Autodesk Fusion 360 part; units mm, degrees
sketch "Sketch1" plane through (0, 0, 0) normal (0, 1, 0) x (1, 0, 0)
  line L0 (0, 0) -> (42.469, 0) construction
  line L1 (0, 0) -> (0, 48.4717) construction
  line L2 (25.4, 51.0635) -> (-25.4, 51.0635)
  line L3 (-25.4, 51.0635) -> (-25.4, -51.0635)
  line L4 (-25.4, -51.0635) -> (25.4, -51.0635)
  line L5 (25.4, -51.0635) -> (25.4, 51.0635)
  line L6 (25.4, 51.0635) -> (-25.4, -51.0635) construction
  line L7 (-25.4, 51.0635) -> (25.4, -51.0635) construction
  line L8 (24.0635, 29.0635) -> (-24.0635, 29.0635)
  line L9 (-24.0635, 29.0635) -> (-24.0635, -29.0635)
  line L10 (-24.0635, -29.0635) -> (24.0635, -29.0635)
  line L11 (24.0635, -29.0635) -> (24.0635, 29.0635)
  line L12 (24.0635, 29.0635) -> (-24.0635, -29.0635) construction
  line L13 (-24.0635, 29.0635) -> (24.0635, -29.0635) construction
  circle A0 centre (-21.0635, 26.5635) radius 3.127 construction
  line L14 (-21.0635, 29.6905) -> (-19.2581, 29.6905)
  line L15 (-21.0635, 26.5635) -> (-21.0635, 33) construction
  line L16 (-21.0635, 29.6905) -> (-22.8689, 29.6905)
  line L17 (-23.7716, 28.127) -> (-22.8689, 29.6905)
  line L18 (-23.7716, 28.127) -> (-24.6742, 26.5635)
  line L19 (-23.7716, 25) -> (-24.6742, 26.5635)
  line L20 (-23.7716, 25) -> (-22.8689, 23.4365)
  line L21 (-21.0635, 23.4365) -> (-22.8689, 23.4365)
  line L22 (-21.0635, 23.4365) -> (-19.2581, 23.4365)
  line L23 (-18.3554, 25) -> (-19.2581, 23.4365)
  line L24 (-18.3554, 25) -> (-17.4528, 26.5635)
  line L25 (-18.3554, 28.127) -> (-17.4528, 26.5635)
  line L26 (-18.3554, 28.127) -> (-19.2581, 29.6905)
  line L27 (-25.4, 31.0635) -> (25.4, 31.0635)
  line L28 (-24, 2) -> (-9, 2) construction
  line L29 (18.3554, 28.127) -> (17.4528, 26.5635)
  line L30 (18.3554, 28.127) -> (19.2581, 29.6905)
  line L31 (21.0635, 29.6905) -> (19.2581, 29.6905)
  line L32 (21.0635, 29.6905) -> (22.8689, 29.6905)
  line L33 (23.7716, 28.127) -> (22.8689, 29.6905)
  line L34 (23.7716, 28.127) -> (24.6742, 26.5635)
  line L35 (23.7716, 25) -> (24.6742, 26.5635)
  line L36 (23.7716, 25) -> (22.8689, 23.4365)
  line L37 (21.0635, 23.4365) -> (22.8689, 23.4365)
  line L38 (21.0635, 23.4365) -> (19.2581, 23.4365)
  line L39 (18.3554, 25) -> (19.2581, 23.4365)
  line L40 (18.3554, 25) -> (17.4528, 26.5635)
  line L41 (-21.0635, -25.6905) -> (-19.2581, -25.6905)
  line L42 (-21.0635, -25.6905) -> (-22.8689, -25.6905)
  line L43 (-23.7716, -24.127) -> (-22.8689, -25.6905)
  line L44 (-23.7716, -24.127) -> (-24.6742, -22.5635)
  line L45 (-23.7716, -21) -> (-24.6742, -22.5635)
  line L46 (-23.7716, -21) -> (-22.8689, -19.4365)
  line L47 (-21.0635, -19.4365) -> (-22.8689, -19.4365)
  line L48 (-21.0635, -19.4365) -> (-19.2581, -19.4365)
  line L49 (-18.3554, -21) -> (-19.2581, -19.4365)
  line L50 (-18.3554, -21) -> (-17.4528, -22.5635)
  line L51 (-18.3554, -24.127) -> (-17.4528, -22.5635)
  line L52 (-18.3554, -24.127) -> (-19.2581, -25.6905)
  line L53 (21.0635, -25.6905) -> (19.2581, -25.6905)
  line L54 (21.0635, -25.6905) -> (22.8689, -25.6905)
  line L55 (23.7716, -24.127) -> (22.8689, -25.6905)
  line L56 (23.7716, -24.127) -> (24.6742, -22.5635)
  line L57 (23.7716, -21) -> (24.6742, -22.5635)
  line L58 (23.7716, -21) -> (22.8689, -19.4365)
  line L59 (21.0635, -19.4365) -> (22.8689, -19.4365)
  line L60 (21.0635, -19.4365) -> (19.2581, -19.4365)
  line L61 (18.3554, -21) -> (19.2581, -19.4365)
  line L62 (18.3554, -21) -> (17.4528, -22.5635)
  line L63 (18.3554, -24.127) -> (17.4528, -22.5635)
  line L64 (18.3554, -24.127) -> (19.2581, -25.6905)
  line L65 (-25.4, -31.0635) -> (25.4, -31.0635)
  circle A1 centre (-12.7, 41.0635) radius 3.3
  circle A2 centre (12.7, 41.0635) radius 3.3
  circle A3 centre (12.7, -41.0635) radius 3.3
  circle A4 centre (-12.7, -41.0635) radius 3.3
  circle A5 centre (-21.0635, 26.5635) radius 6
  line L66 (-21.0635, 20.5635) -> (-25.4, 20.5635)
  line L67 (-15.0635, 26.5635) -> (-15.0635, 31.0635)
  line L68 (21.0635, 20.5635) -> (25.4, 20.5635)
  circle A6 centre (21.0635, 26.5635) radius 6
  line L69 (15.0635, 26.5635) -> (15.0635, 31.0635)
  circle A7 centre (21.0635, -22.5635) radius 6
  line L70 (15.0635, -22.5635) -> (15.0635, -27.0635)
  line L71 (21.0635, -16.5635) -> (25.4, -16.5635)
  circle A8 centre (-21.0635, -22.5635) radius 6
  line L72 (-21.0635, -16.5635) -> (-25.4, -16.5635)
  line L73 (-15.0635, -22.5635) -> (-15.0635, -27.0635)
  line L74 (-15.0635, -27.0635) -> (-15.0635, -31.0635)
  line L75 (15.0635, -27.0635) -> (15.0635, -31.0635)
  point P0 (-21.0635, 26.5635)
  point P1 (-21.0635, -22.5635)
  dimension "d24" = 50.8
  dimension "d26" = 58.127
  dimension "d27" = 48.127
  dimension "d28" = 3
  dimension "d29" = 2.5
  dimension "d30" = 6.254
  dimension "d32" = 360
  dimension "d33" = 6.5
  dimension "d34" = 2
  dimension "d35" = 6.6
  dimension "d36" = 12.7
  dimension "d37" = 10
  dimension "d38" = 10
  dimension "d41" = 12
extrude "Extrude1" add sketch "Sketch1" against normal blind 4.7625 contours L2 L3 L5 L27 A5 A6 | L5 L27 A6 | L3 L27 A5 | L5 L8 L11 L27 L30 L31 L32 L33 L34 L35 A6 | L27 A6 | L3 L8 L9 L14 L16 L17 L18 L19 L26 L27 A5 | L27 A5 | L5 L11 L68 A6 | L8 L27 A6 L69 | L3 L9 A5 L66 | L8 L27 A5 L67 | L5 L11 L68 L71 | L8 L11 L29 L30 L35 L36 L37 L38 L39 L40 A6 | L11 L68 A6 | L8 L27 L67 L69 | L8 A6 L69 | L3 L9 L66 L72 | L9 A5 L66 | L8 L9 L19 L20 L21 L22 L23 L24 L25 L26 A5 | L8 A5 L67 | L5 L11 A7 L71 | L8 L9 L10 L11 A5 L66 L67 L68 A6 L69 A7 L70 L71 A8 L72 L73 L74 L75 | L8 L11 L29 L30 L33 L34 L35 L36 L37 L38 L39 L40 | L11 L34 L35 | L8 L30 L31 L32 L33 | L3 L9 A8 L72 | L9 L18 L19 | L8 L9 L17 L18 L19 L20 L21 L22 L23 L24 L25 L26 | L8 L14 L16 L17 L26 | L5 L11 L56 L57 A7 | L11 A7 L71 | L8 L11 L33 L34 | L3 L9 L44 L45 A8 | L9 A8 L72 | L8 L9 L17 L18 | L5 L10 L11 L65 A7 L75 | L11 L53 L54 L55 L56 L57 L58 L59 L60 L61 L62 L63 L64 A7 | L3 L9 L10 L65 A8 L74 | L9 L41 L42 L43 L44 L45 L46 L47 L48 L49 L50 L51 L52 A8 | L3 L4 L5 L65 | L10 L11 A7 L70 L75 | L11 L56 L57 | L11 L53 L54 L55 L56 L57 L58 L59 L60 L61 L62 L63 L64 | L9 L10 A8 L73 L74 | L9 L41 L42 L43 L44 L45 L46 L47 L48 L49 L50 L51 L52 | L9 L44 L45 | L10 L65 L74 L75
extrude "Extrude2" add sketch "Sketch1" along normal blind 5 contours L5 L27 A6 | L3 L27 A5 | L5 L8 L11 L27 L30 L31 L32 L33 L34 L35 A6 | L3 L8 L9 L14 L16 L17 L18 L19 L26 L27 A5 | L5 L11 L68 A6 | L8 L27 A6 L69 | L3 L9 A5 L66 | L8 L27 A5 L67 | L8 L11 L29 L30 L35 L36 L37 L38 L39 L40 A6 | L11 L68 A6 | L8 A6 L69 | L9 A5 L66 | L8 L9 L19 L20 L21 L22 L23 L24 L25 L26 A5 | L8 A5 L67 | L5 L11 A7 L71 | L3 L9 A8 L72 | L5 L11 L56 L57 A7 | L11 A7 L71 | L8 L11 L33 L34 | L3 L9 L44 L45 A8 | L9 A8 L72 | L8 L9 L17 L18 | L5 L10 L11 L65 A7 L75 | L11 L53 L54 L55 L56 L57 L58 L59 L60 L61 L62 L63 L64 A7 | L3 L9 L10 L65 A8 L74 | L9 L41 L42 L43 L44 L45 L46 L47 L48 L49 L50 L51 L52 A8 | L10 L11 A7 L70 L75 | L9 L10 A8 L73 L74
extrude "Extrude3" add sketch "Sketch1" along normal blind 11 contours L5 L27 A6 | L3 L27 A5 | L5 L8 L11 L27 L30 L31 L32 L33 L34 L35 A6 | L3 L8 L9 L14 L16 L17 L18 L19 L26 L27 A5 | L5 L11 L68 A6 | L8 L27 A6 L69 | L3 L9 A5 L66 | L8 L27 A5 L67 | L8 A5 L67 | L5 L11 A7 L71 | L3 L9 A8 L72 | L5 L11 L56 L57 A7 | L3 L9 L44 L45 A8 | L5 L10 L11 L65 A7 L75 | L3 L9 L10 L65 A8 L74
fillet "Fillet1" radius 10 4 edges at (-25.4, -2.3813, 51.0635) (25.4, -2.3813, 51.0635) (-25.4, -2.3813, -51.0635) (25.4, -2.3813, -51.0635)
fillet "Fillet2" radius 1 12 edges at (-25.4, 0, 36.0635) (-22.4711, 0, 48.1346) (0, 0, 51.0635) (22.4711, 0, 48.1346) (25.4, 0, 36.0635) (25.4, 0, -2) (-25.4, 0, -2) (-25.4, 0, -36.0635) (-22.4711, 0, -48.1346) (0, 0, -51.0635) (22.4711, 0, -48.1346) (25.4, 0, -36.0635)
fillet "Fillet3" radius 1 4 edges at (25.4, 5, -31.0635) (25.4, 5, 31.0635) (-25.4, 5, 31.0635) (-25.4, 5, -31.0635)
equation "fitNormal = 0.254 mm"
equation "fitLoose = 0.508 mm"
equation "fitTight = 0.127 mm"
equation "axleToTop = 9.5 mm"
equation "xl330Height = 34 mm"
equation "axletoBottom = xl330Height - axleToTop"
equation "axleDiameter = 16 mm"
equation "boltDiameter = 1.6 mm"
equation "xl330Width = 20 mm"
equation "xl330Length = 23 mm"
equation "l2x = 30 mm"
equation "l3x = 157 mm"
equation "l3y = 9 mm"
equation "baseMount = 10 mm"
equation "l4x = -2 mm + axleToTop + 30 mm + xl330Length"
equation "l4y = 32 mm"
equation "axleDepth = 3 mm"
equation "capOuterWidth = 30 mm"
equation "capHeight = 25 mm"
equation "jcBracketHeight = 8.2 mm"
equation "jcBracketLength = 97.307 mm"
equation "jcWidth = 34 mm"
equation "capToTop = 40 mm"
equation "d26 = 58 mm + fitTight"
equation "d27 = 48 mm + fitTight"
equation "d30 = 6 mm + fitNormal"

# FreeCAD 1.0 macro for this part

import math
import FreeCAD as App
import Part
import Sketcher
from FreeCAD import Vector
Q = App.Units.Quantity


def edges_at(feature, points):
    """Names of the edges that pass closest to the given points."""
    edges = feature.Shape.Edges
    near = lambda p: min(range(len(edges)), key=lambda i: edges[i].distToShape(Part.Vertex(*p))[0])
    return sorted({f"Edge{near(p) + 1}" for p in points})

doc = App.newDocument("Part")
body = doc.addObject("PartDesign::Body", "Body")

sketch1 = body.newObject("Sketcher::SketchObject", "Sketch")
sketch1.AttachmentSupport = (doc.getObject("XZ_Plane"), [""])
sketch1.MapMode = "FlatFace"
sketch1.addGeometry(Part.LineSegment(Vector(25.4, -51.1, 0), Vector(-25.4, -51.1, 0)), False)
sketch1.addGeometry(Part.LineSegment(Vector(-25.4, -51.1, 0), Vector(-25.4, 51.1, 0)), False)
sketch1.addGeometry(Part.LineSegment(Vector(-25.4, 51.1, 0), Vector(25.4, 51.1, 0)), False)
sketch1.addGeometry(Part.LineSegment(Vector(25.4, 51.1, 0), Vector(25.4, -51.1, 0)), False)
sketch1.addGeometry(Part.Circle(Vector(-12.7, -41.1, 0), Vector(0, 0, 1), 3.3), False)
sketch1.addGeometry(Part.Circle(Vector(12.7, -41.1, 0), Vector(0, 0, 1), 3.3), False)
sketch1.addGeometry(Part.Circle(Vector(12.7, 41.1, 0), Vector(0, 0, 1), 3.3), False)
sketch1.addGeometry(Part.Circle(Vector(-12.7, 41.1, 0), Vector(0, 0, 1), 3.3), False)
sketch1.addConstraint(Sketcher.Constraint("Coincident", 0, 2, 1, 1))
sketch1.addConstraint(Sketcher.Constraint("Coincident", 1, 2, 2, 1))
sketch1.addConstraint(Sketcher.Constraint("Coincident", 2, 2, 3, 1))
sketch1.addConstraint(Sketcher.Constraint("Coincident", 3, 2, 0, 1))
sketch1.addConstraint(Sketcher.Constraint("Horizontal", 0))
sketch1.addConstraint(Sketcher.Constraint("Vertical", 1))
sketch1.addConstraint(Sketcher.Constraint("Horizontal", 2))
sketch1.addConstraint(Sketcher.Constraint("Vertical", 3))
sketch1.addConstraint(Sketcher.Constraint("Equal", 4, 5))
sketch1.addConstraint(Sketcher.Constraint("Equal", 5, 6))
sketch1.addConstraint(Sketcher.Constraint("Equal", 6, 7))
sketch1.addConstraint(Sketcher.Constraint("Symmetric", 4, 3, 6, 3, -1, 1))
sketch1.addConstraint(Sketcher.Constraint("Symmetric", 5, 3, 7, 3, -1, 1))
sketch1.addConstraint(Sketcher.Constraint("Symmetric", 0, 2, 2, 2, -1, 1))
sketch1.addConstraint(Sketcher.Constraint("Symmetric", 4, 3, 5, 3, -2))
sketch1.addConstraint(Sketcher.Constraint("Diameter", 4, Q("6.6 mm")))
sketch1.addConstraint(Sketcher.Constraint("DistanceX", 0, 2, 0, 1, Q("50.8 mm")))
sketch1.addConstraint(Sketcher.Constraint("DistanceY", 0, 2, 4, 3, Q("10 mm")))
sketch1.addConstraint(Sketcher.Constraint("DistanceX", 4, 3, -1, 1, Q("12.7 mm")))
sketch1.addConstraint(Sketcher.Constraint("DistanceY", 1, 1, 1, 2, Q("102.127 mm")))
pad1 = body.newObject("PartDesign::Pad", "Pad")
pad1.Profile = sketch1
pad1.Length = 4.7625

sketch2 = body.newObject("Sketcher::SketchObject", "Sketch001")
sketch2.AttachmentSupport = (doc.getObject("XZ_Plane"), [""])
sketch2.MapMode = "FlatFace"
sketch2.addGeometry(Part.LineSegment(Vector(25.4, -31.1, 0), Vector(15.1, -31.1, 0)), False)
sketch2.addGeometry(Part.LineSegment(Vector(15.1, -31.1, 0), Vector(15.1, -26.6, 0)), False)
sketch2.addGeometry(Part.ArcOfCircle(Part.Circle(Vector(21.1, -26.6, 0), Vector(0, 0, 1), 6), math.radians(90), math.radians(180)), False)
sketch2.addGeometry(Part.LineSegment(Vector(21.1, -20.6, 0), Vector(25.4, -20.6, 0)), False)
sketch2.addGeometry(Part.LineSegment(Vector(25.4, -20.6, 0), Vector(25.4, -31.1, 0)), False)
sketch2.addGeometry(Part.LineSegment(Vector(24.7, -26.6, 0), Vector(23.8, -25, 0)), False)
sketch2.addGeometry(Part.LineSegment(Vector(23.8, -25, 0), Vector(22.9, -23.4, 0)), False)
sketch2.addGeometry(Part.LineSegment(Vector(22.9, -23.4, 0), Vector(19.3, -23.4, 0)), False)
sketch2.addGeometry(Part.LineSegment(Vector(19.3, -23.4, 0), Vector(18.4, -25, 0)), False)
sketch2.addGeometry(Part.LineSegment(Vector(18.4, -25, 0), Vector(17.5, -26.6, 0)), False)
sketch2.addGeometry(Part.LineSegment(Vector(17.5, -26.6, 0), Vector(18.4, -28.1, 0)), False)
sketch2.addGeometry(Part.LineSegment(Vector(18.4, -28.1, 0), Vector(19.3, -29.7, 0)), False)
sketch2.addGeometry(Part.LineSegment(Vector(19.3, -29.7, 0), Vector(22.9, -29.7, 0)), False)
sketch2.addGeometry(Part.LineSegment(Vector(22.9, -29.7, 0), Vector(23.8, -28.1, 0)), False)
sketch2.addGeometry(Part.LineSegment(Vector(23.8, -28.1, 0), Vector(24.7, -26.6, 0)), False)
sketch2.addGeometry(Part.LineSegment(Vector(-25.4, -31.1, 0), Vector(-25.4, -20.6, 0)), False)
sketch2.addGeometry(Part.LineSegment(Vector(-25.4, -20.6, 0), Vector(-21.1, -20.6, 0)), False)
sketch2.addGeometry(Part.ArcOfCircle(Part.Circle(Vector(-21.1, -26.6, 0), Vector(0, 0, 1), 6), math.radians(0), math.radians(90)), False)
sketch2.addGeometry(Part.LineSegment(Vector(-15.1, -26.6, 0), Vector(-15.1, -31.1, 0)), False)
sketch2.addGeometry(Part.LineSegment(Vector(-15.1, -31.1, 0), Vector(-25.4, -31.1, 0)), False)
sketch2.addGeometry(Part.LineSegment(Vector(-19.3, -29.7, 0), Vector(-18.4, -28.1, 0)), False)
sketch2.addGeometry(Part.LineSegment(Vector(-18.4, -28.1, 0), Vector(-17.5, -26.6, 0)), False)
sketch2.addGeometry(Part.LineSegment(Vector(-17.5, -26.6, 0), Vector(-18.4, -25, 0)), False)
sketch2.addGeometry(Part.LineSegment(Vector(-18.4, -25, 0), Vector(-19.3, -23.4, 0)), False)
sketch2.addGeometry(Part.LineSegment(Vector(-19.3, -23.4, 0), Vector(-22.9, -23.4, 0)), False)
sketch2.addGeometry(Part.LineSegment(Vector(-22.9, -23.4, 0), Vector(-23.8, -25, 0)), False)
sketch2.addGeometry(Part.LineSegment(Vector(-23.8, -25, 0), Vector(-24.7, -26.6, 0)), False)
sketch2.addGeometry(Part.LineSegment(Vector(-24.7, -26.6, 0), Vector(-23.8, -28.1, 0)), False)
sketch2.addGeometry(Part.LineSegment(Vector(-23.8, -28.1, 0), Vector(-22.9, -29.7, 0)), False)
sketch2.addGeometry(Part.LineSegment(Vector(-22.9, -29.7, 0), Vector(-19.3, -29.7, 0)), False)
sketch2.addGeometry(Part.LineSegment(Vector(25.4, 16.6, 0), Vector(21.1, 16.6, 0)), False)
sketch2.addGeometry(Part.ArcOfCircle(Part.Circle(Vector(21.1, 22.6, 0), Vector(0, 0, 1), 6), math.radians(180), math.radians(270)), False)
sketch2.addGeometry(Part.LineSegment(Vector(15.1, 22.6, 0), Vector(15.1, 31.1, 0)), False)
sketch2.addGeometry(Part.LineSegment(Vector(15.1, 31.1, 0), Vector(25.4, 31.1, 0)), False)
sketch2.addGeometry(Part.LineSegment(Vector(25.4, 31.1, 0), Vector(25.4, 16.6, 0)), False)
sketch2.addGeometry(Part.LineSegment(Vector(24.7, 22.6, 0), Vector(23.8, 24.1, 0)), False)
sketch2.addGeometry(Part.LineSegment(Vector(23.8, 24.1, 0), Vector(22.9, 25.7, 0)), False)
sketch2.addGeometry(Part.LineSegment(Vector(22.9, 25.7, 0), Vector(19.3, 25.7, 0)), False)
sketch2.addGeometry(Part.LineSegment(Vector(19.3, 25.7, 0), Vector(18.4, 24.1, 0)), False)
sketch2.addGeometry(Part.LineSegment(Vector(18.4, 24.1, 0), Vector(17.5, 22.6, 0)), False)
sketch2.addGeometry(Part.LineSegment(Vector(17.5, 22.6, 0), Vector(18.4, 21, 0)), False)
sketch2.addGeometry(Part.LineSegment(Vector(18.4, 21, 0), Vector(19.3, 19.4, 0)), False)
sketch2.addGeometry(Part.LineSegment(Vector(19.3, 19.4, 0), Vector(22.9, 19.4, 0)), False)
sketch2.addGeometry(Part.LineSegment(Vector(22.9, 19.4, 0), Vector(23.8, 21, 0)), False)
sketch2.addGeometry(Part.LineSegment(Vector(23.8, 21, 0), Vector(24.7, 22.6, 0)), False)
sketch2.addGeometry(Part.LineSegment(Vector(-25.4, 16.6, 0), Vector(-25.4, 31.1, 0)), False)
sketch2.addGeometry(Part.LineSegment(Vector(-25.4, 31.1, 0), Vector(-15.1, 31.1, 0)), False)
sketch2.addGeometry(Part.LineSegment(Vector(-15.1, 31.1, 0), Vector(-15.1, 22.6, 0)), False)
sketch2.addGeometry(Part.ArcOfCircle(Part.Circle(Vector(-21.1, 22.6, 0), Vector(0, 0, 1), 6), math.radians(-90), math.radians(0)), False)
sketch2.addGeometry(Part.LineSegment(Vector(-21.1, 16.6, 0), Vector(-25.4, 16.6, 0)), False)
sketch2.addGeometry(Part.LineSegment(Vector(-24.7, 22.6, 0), Vector(-23.8, 21, 0)), False)
sketch2.addGeometry(Part.LineSegment(Vector(-23.8, 21, 0), Vector(-22.9, 19.4, 0)), False)
sketch2.addGeometry(Part.LineSegment(Vector(-22.9, 19.4, 0), Vector(-19.3, 19.4, 0)), False)
sketch2.addGeometry(Part.LineSegment(Vector(-19.3, 19.4, 0), Vector(-18.4, 21, 0)), False)
sketch2.addGeometry(Part.LineSegment(Vector(-18.4, 21, 0), Vector(-17.5, 22.6, 0)), False)
sketch2.addGeometry(Part.LineSegment(Vector(-17.5, 22.6, 0), Vector(-18.4, 24.1, 0)), False)
sketch2.addGeometry(Part.LineSegment(Vector(-18.4, 24.1, 0), Vector(-19.3, 25.7, 0)), False)
sketch2.addGeometry(Part.LineSegment(Vector(-19.3, 25.7, 0), Vector(-22.9, 25.7, 0)), False)
sketch2.addGeometry(Part.LineSegment(Vector(-22.9, 25.7, 0), Vector(-23.8, 24.1, 0)), False)
sketch2.addGeometry(Part.LineSegment(Vector(-23.8, 24.1, 0), Vector(-24.7, 22.6, 0)), False)
sketch2.addConstraint(Sketcher.Constraint("Coincident", 0, 2, 1, 1))
sketch2.addConstraint(Sketcher.Constraint("Tangent", 1, 2, 2, 2))
sketch2.addConstraint(Sketcher.Constraint("Tangent", 2, 1, 3, 1))
sketch2.addConstraint(Sketcher.Constraint("Coincident", 3, 2, 4, 1))
sketch2.addConstraint(Sketcher.Constraint("Coincident", 4, 2, 0, 1))
sketch2.addConstraint(Sketcher.Constraint("Coincident", 5, 2, 6, 1))
sketch2.addConstraint(Sketcher.Constraint("Coincident", 6, 2, 7, 1))
sketch2.addConstraint(Sketcher.Constraint("Coincident", 7, 2, 8, 1))
sketch2.addConstraint(Sketcher.Constraint("Coincident", 8, 2, 9, 1))
sketch2.addConstraint(Sketcher.Constraint("Coincident", 9, 2, 10, 1))
sketch2.addConstraint(Sketcher.Constraint("Coincident", 10, 2, 11, 1))
sketch2.addConstraint(Sketcher.Constraint("Coincident", 11, 2, 12, 1))
sketch2.addConstraint(Sketcher.Constraint("Coincident", 12, 2, 13, 1))
sketch2.addConstraint(Sketcher.Constraint("Coincident", 13, 2, 14, 1))
sketch2.addConstraint(Sketcher.Constraint("Coincident", 14, 2, 5, 1))
sketch2.addConstraint(Sketcher.Constraint("Coincident", 15, 2, 16, 1))
sketch2.addConstraint(Sketcher.Constraint("Tangent", 16, 2, 17, 2))
sketch2.addConstraint(Sketcher.Constraint("Tangent", 17, 1, 18, 1))
sketch2.addConstraint(Sketcher.Constraint("Coincident", 18, 2, 19, 1))
sketch2.addConstraint(Sketcher.Constraint("Coincident", 19, 2, 15, 1))
sketch2.addConstraint(Sketcher.Constraint("Coincident", 20, 2, 21, 1))
sketch2.addConstraint(Sketcher.Constraint("Coincident", 21, 2, 22, 1))
sketch2.addConstraint(Sketcher.Constraint("Coincident", 22, 2, 23, 1))
sketch2.addConstraint(Sketcher.Constraint("Coincident", 23, 2, 24, 1))
sketch2.addConstraint(Sketcher.Constraint("Coincident", 24, 2, 25, 1))
sketch2.addConstraint(Sketcher.Constraint("Coincident", 25, 2, 26, 1))
sketch2.addConstraint(Sketcher.Constraint("Coincident", 26, 2, 27, 1))
sketch2.addConstraint(Sketcher.Constraint("Coincident", 27, 2, 28, 1))
sketch2.addConstraint(Sketcher.Constraint("Coincident", 28, 2, 29, 1))
sketch2.addConstraint(Sketcher.Constraint("Coincident", 29, 2, 20, 1))
sketch2.addConstraint(Sketcher.Constraint("Tangent", 30, 2, 31, 2))
sketch2.addConstraint(Sketcher.Constraint("Tangent", 31, 1, 32, 1))
sketch2.addConstraint(Sketcher.Constraint("Coincident", 32, 2, 33, 1))
sketch2.addConstraint(Sketcher.Constraint("Coincident", 33, 2, 34, 1))
sketch2.addConstraint(Sketcher.Constraint("Coincident", 34, 2, 30, 1))
sketch2.addConstraint(Sketcher.Constraint("Coincident", 35, 2, 36, 1))
sketch2.addConstraint(Sketcher.Constraint("Coincident", 36, 2, 37, 1))
sketch2.addConstraint(Sketcher.Constraint("Coincident", 37, 2, 38, 1))
sketch2.addConstraint(Sketcher.Constraint("Coincident", 38, 2, 39, 1))
sketch2.addConstraint(Sketcher.Constraint("Coincident", 39, 2, 40, 1))
sketch2.addConstraint(Sketcher.Constraint("Coincident", 40, 2, 41, 1))
sketch2.addConstraint(Sketcher.Constraint("Coincident", 41, 2, 42, 1))
sketch2.addConstraint(Sketcher.Constraint("Coincident", 42, 2, 43, 1))
sketch2.addConstraint(Sketcher.Constraint("Coincident", 43, 2, 44, 1))
sketch2.addConstraint(Sketcher.Constraint("Coincident", 44, 2, 35, 1))
sketch2.addConstraint(Sketcher.Constraint("Coincident", 45, 2, 46, 1))
sketch2.addConstraint(Sketcher.Constraint("Coincident", 46, 2, 47, 1))
sketch2.addConstraint(Sketcher.Constraint("Tangent", 47, 2, 48, 2))
sketch2.addConstraint(Sketcher.Constraint("Tangent", 48, 1, 49, 1))
sketch2.addConstraint(Sketcher.Constraint("Coincident", 49, 2, 45, 1))
sketch2.addConstraint(Sketcher.Constraint("Coincident", 50, 2, 51, 1))
sketch2.addConstraint(Sketcher.Constraint("Coincident", 51, 2, 52, 1))
sketch2.addConstraint(Sketcher.Constraint("Coincident", 52, 2, 53, 1))
sketch2.addConstraint(Sketcher.Constraint("Coincident", 53, 2, 54, 1))
sketch2.addConstraint(Sketcher.Constraint("Coincident", 54, 2, 55, 1))
sketch2.addConstraint(Sketcher.Constraint("Coincident", 55, 2, 56, 1))
sketch2.addConstraint(Sketcher.Constraint("Coincident", 56, 2, 57, 1))
sketch2.addConstraint(Sketcher.Constraint("Coincident", 57, 2, 58, 1))
sketch2.addConstraint(Sketcher.Constraint("Coincident", 58, 2, 59, 1))
sketch2.addConstraint(Sketcher.Constraint("Coincident", 59, 2, 50, 1))
sketch2.addConstraint(Sketcher.Constraint("Horizontal", 0))
sketch2.addConstraint(Sketcher.Constraint("Vertical", 1))
sketch2.addConstraint(Sketcher.Constraint("Horizontal", 3))
sketch2.addConstraint(Sketcher.Constraint("Vertical", 4))
sketch2.addConstraint(Sketcher.Constraint("Horizontal", 7))
sketch2.addConstraint(Sketcher.Constraint("Horizontal", 12))
sketch2.addConstraint(Sketcher.Constraint("Vertical", 15))
sketch2.addConstraint(Sketcher.Constraint("Horizontal", 16))
sketch2.addConstraint(Sketcher.Constraint("Vertical", 18))
sketch2.addConstraint(Sketcher.Constraint("Horizontal", 19))
sketch2.addConstraint(Sketcher.Constraint("Horizontal", 24))
sketch2.addConstraint(Sketcher.Constraint("Horizontal", 29))
sketch2.addConstraint(Sketcher.Constraint("Horizontal", 30))
sketch2.addConstraint(Sketcher.Constraint("Vertical", 32))
sketch2.addConstraint(Sketcher.Constraint("Horizontal", 33))
sketch2.addConstraint(Sketcher.Constraint("Vertical", 34))
sketch2.addConstraint(Sketcher.Constraint("Horizontal", 37))
sketch2.addConstraint(Sketcher.Constraint("Horizontal", 42))
sketch2.addConstraint(Sketcher.Constraint("Vertical", 45))
sketch2.addConstraint(Sketcher.Constraint("Horizontal", 46))
sketch2.addConstraint(Sketcher.Constraint("Vertical", 47))
sketch2.addConstraint(Sketcher.Constraint("Horizontal", 49))
sketch2.addConstraint(Sketcher.Constraint("Horizontal", 52))
sketch2.addConstraint(Sketcher.Constraint("Horizontal", 57))
sketch2.addConstraint(Sketcher.Constraint("Equal", 2, 17))
sketch2.addConstraint(Sketcher.Constraint("Equal", 17, 31))
sketch2.addConstraint(Sketcher.Constraint("Equal", 31, 48))
sketch2.addConstraint(Sketcher.Constraint("Symmetric", 18, 2, 32, 2, -1, 1))
sketch2.addConstraint(Sketcher.Constraint("Symmetric", 4, 2, 45, 2, -1, 1))
sketch2.addConstraint(Sketcher.Constraint("Symmetric", 2, 3, 17, 3, -2))
sketch2.addConstraint(Sketcher.Constraint("Symmetric", 31, 3, 48, 3, -2))
sketch2.addConstraint(Sketcher.Constraint("Symmetric", 4, 2, 19, 2, -2))
sketch2.addConstraint(Sketcher.Constraint("Symmetric", 10, 2, 20, 2, -2))
sketch2.addConstraint(Sketcher.Constraint("Symmetric", 9, 2, 21, 2, -2))
sketch2.addConstraint(Sketcher.Constraint("Symmetric", 8, 2, 22, 2, -2))
sketch2.addConstraint(Sketcher.Constraint("Symmetric", 7, 2, 23, 2, -2))
sketch2.addConstraint(Sketcher.Constraint("Symmetric", 5, 2, 25, 2, -2))
sketch2.addConstraint(Sketcher.Constraint("Symmetric", 14, 2, 26, 2, -2))
sketch2.addConstraint(Sketcher.Constraint("Symmetric", 13, 2, 27, 2, -2))
sketch2.addConstraint(Sketcher.Constraint("Symmetric", 12, 2, 28, 2, -2))
sketch2.addConstraint(Sketcher.Constraint("Symmetric", 43, 2, 50, 2, -2))
sketch2.addConstraint(Sketcher.Constraint("Symmetric", 42, 2, 51, 2, -2))
sketch2.addConstraint(Sketcher.Constraint("Symmetric", 40, 2, 53, 2, -2))
sketch2.addConstraint(Sketcher.Constraint("Symmetric", 39, 2, 54, 2, -2))
sketch2.addConstraint(Sketcher.Constraint("Symmetric", 38, 2, 55, 2, -2))
sketch2.addConstraint(Sketcher.Constraint("Symmetric", 37, 2, 56, 2, -2))
sketch2.addConstraint(Sketcher.Constraint("Symmetric", 35, 2, 58, 2, -2))
sketch2.addConstraint(Sketcher.Constraint("Symmetric", 44, 2, 59, 2, -2))
sketch2.addConstraint(Sketcher.Constraint("Parallel", 5, 6))
sketch2.addConstraint(Sketcher.Constraint("Parallel", 8, 9))
sketch2.addConstraint(Sketcher.Constraint("Parallel", 6, 10))
sketch2.addConstraint(Sketcher.Constraint("Parallel", 10, 11))
sketch2.addConstraint(Sketcher.Constraint("Parallel", 9, 13))
sketch2.addConstraint(Sketcher.Constraint("Parallel", 13, 14))
sketch2.addConstraint(Sketcher.Constraint("Parallel", 14, 20))
sketch2.addConstraint(Sketcher.Constraint("Parallel", 20, 21))
sketch2.addConstraint(Sketcher.Constraint("Parallel", 21, 25))
sketch2.addConstraint(Sketcher.Constraint("Parallel", 28, 35))
sketch2.addConstraint(Sketcher.Constraint("Parallel", 35, 36))
sketch2.addConstraint(Sketcher.Constraint("Parallel", 26, 38))
sketch2.addConstraint(Sketcher.Constraint("Parallel", 38, 39))
sketch2.addConstraint(Sketcher.Constraint("Parallel", 36, 40))
sketch2.addConstraint(Sketcher.Constraint("Parallel", 40, 41))
sketch2.addConstraint(Sketcher.Constraint("Parallel", 39, 43))
sketch2.addConstraint(Sketcher.Constraint("Parallel", 43, 44))
sketch2.addConstraint(Sketcher.Constraint("Parallel", 44, 53))
sketch2.addConstraint(Sketcher.Constraint("Parallel", 54, 58))
sketch2.addConstraint(Sketcher.Constraint("Horizontal", 5, 2, 8, 2))
sketch2.addConstraint(Sketcher.Constraint("Horizontal", 1, 2, 9, 2))
sketch2.addConstraint(Sketcher.Constraint("Horizontal", 10, 2, 13, 2))
sketch2.addConstraint(Sketcher.Constraint("Horizontal", 9, 2, 14, 2))
sketch2.addConstraint(Sketcher.Constraint("Horizontal", 35, 2, 38, 2))
sketch2.addConstraint(Sketcher.Constraint("Horizontal", 31, 1, 39, 2))
sketch2.addConstraint(Sketcher.Constraint("Horizontal", 40, 2, 43, 2))
sketch2.addConstraint(Sketcher.Constraint("Horizontal", 39, 2, 44, 2))
sketch2.addConstraint(Sketcher.Constraint("Vertical", 8, 2, 10, 2))
sketch2.addConstraint(Sketcher.Constraint("Vertical", 7, 2, 11, 2))
sketch2.addConstraint(Sketcher.Constraint("Vertical", 4, 2, 33, 2))
sketch2.addConstraint(Sketcher.Constraint("Vertical", 13, 2, 35, 2))
sketch2.addConstraint(Sketcher.Constraint("Vertical", 12, 2, 36, 2))
sketch2.addConstraint(Sketcher.Constraint("Vertical", 11, 2, 37, 2))
sketch2.addConstraint(Sketcher.Constraint("Vertical", 9, 2, 39, 2))
sketch2.addConstraint(Sketcher.Constraint("Vertical", 38, 2, 40, 2))
sketch2.addConstraint(Sketcher.Constraint("Vertical", 37, 2, 41, 2))
sketch2.addConstraint(Sketcher.Constraint("Equal", 5, 6))
sketch2.addConstraint(Sketcher.Constraint("Radius", 2, Q("6 mm")))
sketch2.addConstraint(Sketcher.Constraint("Angle", 6, Q("120.0004 deg")))
sketch2.addConstraint(Sketcher.Constraint("DistanceY", 1, 1, 1, 2, Q("4.5 mm")))
sketch2.addConstraint(Sketcher.Constraint("DistanceY", 32, 1, 32, 2, Q("8.5 mm")))
sketch2.addConstraint(Sketcher.Constraint("DistanceY", 5, 2, -1, 1, Q("25 mm")))
sketch2.addConstraint(Sketcher.Constraint("DistanceX", -1, 1, 3, 2, Q("25.4 mm")))
sketch2.addConstraint(Sketcher.Constraint("DistanceX", 0, 2, 0, 1, Q("10.3365 mm")))
sketch2.addConstraint(Sketcher.Constraint("DistanceX", 7, 2, 7, 1, Q("3.6108 mm")))
sketch2.addConstraint(Sketcher.Constraint("DistanceX", -1, 1, 6, 2, Q("22.869 mm")))
sketch2.addConstraint(Sketcher.Constraint("DistanceY", 10, 2, -1, 1, Q("28.127 mm")))
pad2 = body.newObject("PartDesign::Pad", "Pad001")
pad2.Profile = sketch2
pad2.Length = 5
pad2.Reversed = True

sketch3 = body.newObject("Sketcher::SketchObject", "Sketch002")
sketch3.AttachmentSupport = (doc.getObject("XZ_Plane"), [""])
sketch3.MapMode = "FlatFace"
sketch3.addGeometry(Part.LineSegment(Vector(25.4, -31.1, 0), Vector(15.1, -31.1, 0)), False)
sketch3.addGeometry(Part.LineSegment(Vector(15.1, -31.1, 0), Vector(15.1, -29.1, 0)), False)
sketch3.addGeometry(Part.LineSegment(Vector(15.1, -29.1, 0), Vector(18.9, -29.1, 0)), False)
sketch3.addGeometry(Part.LineSegment(Vector(18.9, -29.1, 0), Vector(19.3, -29.7, 0)), False)
sketch3.addGeometry(Part.LineSegment(Vector(19.3, -29.7, 0), Vector(22.9, -29.7, 0)), False)
sketch3.addGeometry(Part.LineSegment(Vector(22.9, -29.7, 0), Vector(23.2, -29.1, 0)), False)
sketch3.addGeometry(Part.LineSegment(Vector(23.2, -29.1, 0), Vector(24.1, -29.1, 0)), False)
sketch3.addGeometry(Part.LineSegment(Vector(24.1, -29.1, 0), Vector(24.1, -27.6, 0)), False)
sketch3.addGeometry(Part.LineSegment(Vector(24.1, -27.6, 0), Vector(24.7, -26.6, 0)), False)
sketch3.addGeometry(Part.LineSegment(Vector(24.7, -26.6, 0), Vector(24.1, -25.5, 0)), False)
sketch3.addGeometry(Part.LineSegment(Vector(24.1, -25.5, 0), Vector(24.1, -20.6, 0)), False)
sketch3.addGeometry(Part.LineSegment(Vector(24.1, -20.6, 0), Vector(25.4, -20.6, 0)), False)
sketch3.addGeometry(Part.LineSegment(Vector(25.4, -20.6, 0), Vector(25.4, -31.1, 0)), False)
sketch3.addGeometry(Part.LineSegment(Vector(-25.4, -31.1, 0), Vector(-25.4, -20.6, 0)), False)
sketch3.addGeometry(Part.LineSegment(Vector(-25.4, -20.6, 0), Vector(-24.1, -20.6, 0)), False)
sketch3.addGeometry(Part.LineSegment(Vector(-24.1, -20.6, 0), Vector(-24.1, -25.5, 0)), False)
sketch3.addGeometry(Part.LineSegment(Vector(-24.1, -25.5, 0), Vector(-24.7, -26.6, 0)), False)
sketch3.addGeometry(Part.LineSegment(Vector(-24.7, -26.6, 0), Vector(-24.1, -27.6, 0)), False)
sketch3.addGeometry(Part.LineSegment(Vector(-24.1, -27.6, 0), Vector(-24.1, -29.1, 0)), False)
sketch3.addGeometry(Part.LineSegment(Vector(-24.1, -29.1, 0), Vector(-23.2, -29.1, 0)), False)
sketch3.addGeometry(Part.LineSegment(Vector(-23.2, -29.1, 0), Vector(-22.9, -29.7, 0)), False)
sketch3.addGeometry(Part.LineSegment(Vector(-22.9, -29.7, 0), Vector(-19.3, -29.7, 0)), False)
sketch3.addGeometry(Part.LineSegment(Vector(-19.3, -29.7, 0), Vector(-18.9, -29.1, 0)), False)
sketch3.addGeometry(Part.LineSegment(Vector(-18.9, -29.1, 0), Vector(-15.6, -29.1, 0)), False)
sketch3.addGeometry(Part.ArcOfCircle(Part.Circle(Vector(-21.1, -26.6, 0), Vector(0, 0, 1), 6), math.radians(-25), math.radians(0)), False)
sketch3.addGeometry(Part.LineSegment(Vector(-15.1, -26.6, 0), Vector(-15.1, -31.1, 0)), False)
sketch3.addGeometry(Part.LineSegment(Vector(-15.1, -31.1, 0), Vector(-25.4, -31.1, 0)), False)
sketch3.addGeometry(Part.LineSegment(Vector(25.4, 16.6, 0), Vector(24.1, 16.6, 0)), False)
sketch3.addGeometry(Part.LineSegment(Vector(24.1, 16.6, 0), Vector(24.1, 21.5, 0)), False)
sketch3.addGeometry(Part.LineSegment(Vector(24.1, 21.5, 0), Vector(24.7, 22.6, 0)), False)
sketch3.addGeometry(Part.LineSegment(Vector(24.7, 22.6, 0), Vector(24.1, 23.6, 0)), False)
sketch3.addGeometry(Part.LineSegment(Vector(24.1, 23.6, 0), Vector(24.1, 29.1, 0)), False)
sketch3.addGeometry(Part.LineSegment(Vector(24.1, 29.1, 0), Vector(15.1, 29.1, 0)), False)
sketch3.addGeometry(Part.LineSegment(Vector(15.1, 29.1, 0), Vector(15.1, 31.1, 0)), False)
sketch3.addGeometry(Part.LineSegment(Vector(15.1, 31.1, 0), Vector(25.4, 31.1, 0)), False)
sketch3.addGeometry(Part.LineSegment(Vector(25.4, 31.1, 0), Vector(25.4, 16.6, 0)), False)
sketch3.addGeometry(Part.LineSegment(Vector(-24.1, 16.6, 0), Vector(-25.4, 16.6, 0)), False)
sketch3.addGeometry(Part.LineSegment(Vector(-25.4, 16.6, 0), Vector(-25.4, 31.1, 0)), False)
sketch3.addGeometry(Part.LineSegment(Vector(-25.4, 31.1, 0), Vector(-15.1, 31.1, 0)), False)
sketch3.addGeometry(Part.LineSegment(Vector(-15.1, 31.1, 0), Vector(-15.1, 29.1, 0)), False)
sketch3.addGeometry(Part.LineSegment(Vector(-15.1, 29.1, 0), Vector(-24.1, 29.1, 0)), False)
sketch3.addGeometry(Part.LineSegment(Vector(-24.1, 29.1, 0), Vector(-24.1, 23.6, 0)), False)
sketch3.addGeometry(Part.LineSegment(Vector(-24.1, 23.6, 0), Vector(-24.7, 22.6, 0)), False)
sketch3.addGeometry(Part.LineSegment(Vector(-24.7, 22.6, 0), Vector(-24.1, 21.5, 0)), False)
sketch3.addGeometry(Part.LineSegment(Vector(-24.1, 21.5, 0), Vector(-24.1, 16.6, 0)), False)
sketch3.addConstraint(Sketcher.Constraint("Coincident", 0, 2, 1, 1))
sketch3.addConstraint(Sketcher.Constraint("Coincident", 1, 2, 2, 1))
sketch3.addConstraint(Sketcher.Constraint("Coincident", 2, 2, 3, 1))
sketch3.addConstraint(Sketcher.Constraint("Coincident", 3, 2, 4, 1))
sketch3.addConstraint(Sketcher.Constraint("Coincident", 4, 2, 5, 1))
sketch3.addConstraint(Sketcher.Constraint("Coincident", 5, 2, 6, 1))
sketch3.addConstraint(Sketcher.Constraint("Coincident", 6, 2, 7, 1))
sketch3.addConstraint(Sketcher.Constraint("Coincident", 7, 2, 8, 1))
sketch3.addConstraint(Sketcher.Constraint("Coincident", 8, 2, 9, 1))
sketch3.addConstraint(Sketcher.Constraint("Coincident", 9, 2, 10, 1))
sketch3.addConstraint(Sketcher.Constraint("Coincident", 10, 2, 11, 1))
sketch3.addConstraint(Sketcher.Constraint("Coincident", 11, 2, 12, 1))
sketch3.addConstraint(Sketcher.Constraint("Coincident", 12, 2, 0, 1))
sketch3.addConstraint(Sketcher.Constraint("Coincident", 13, 2, 14, 1))
sketch3.addConstraint(Sketcher.Constraint("Coincident", 14, 2, 15, 1))
sketch3.addConstraint(Sketcher.Constraint("Coincident", 15, 2, 16, 1))
sketch3.addConstraint(Sketcher.Constraint("Coincident", 16, 2, 17, 1))
sketch3.addConstraint(Sketcher.Constraint("Coincident", 17, 2, 18, 1))
sketch3.addConstraint(Sketcher.Constraint("Coincident", 18, 2, 19, 1))
sketch3.addConstraint(Sketcher.Constraint("Coincident", 19, 2, 20, 1))
sketch3.addConstraint(Sketcher.Constraint("Coincident", 20, 2, 21, 1))
sketch3.addConstraint(Sketcher.Constraint("Coincident", 21, 2, 22, 1))
sketch3.addConstraint(Sketcher.Constraint("Coincident", 22, 2, 23, 1))
sketch3.addConstraint(Sketcher.Constraint("Coincident", 23, 2, 24, 1))
sketch3.addConstraint(Sketcher.Constraint("Tangent", 24, 2, 25, 1))
sketch3.addConstraint(Sketcher.Constraint("Coincident", 25, 2, 26, 1))
sketch3.addConstraint(Sketcher.Constraint("Coincident", 26, 2, 13, 1))
sketch3.addConstraint(Sketcher.Constraint("Coincident", 27, 2, 28, 1))
sketch3.addConstraint(Sketcher.Constraint("Coincident", 28, 2, 29, 1))
sketch3.addConstraint(Sketcher.Constraint("Coincident", 29, 2, 30, 1))
sketch3.addConstraint(Sketcher.Constraint("Coincident", 30, 2, 31, 1))
sketch3.addConstraint(Sketcher.Constraint("Coincident", 31, 2, 32, 1))
sketch3.addConstraint(Sketcher.Constraint("Coincident", 32, 2, 33, 1))
sketch3.addConstraint(Sketcher.Constraint("Coincident", 33, 2, 34, 1))
sketch3.addConstraint(Sketcher.Constraint("Coincident", 34, 2, 35, 1))
sketch3.addConstraint(Sketcher.Constraint("Coincident", 35, 2, 27, 1))
sketch3.addConstraint(Sketcher.Constraint("Coincident", 36, 2, 37, 1))
sketch3.addConstraint(Sketcher.Constraint("Coincident", 37, 2, 38, 1))
sketch3.addConstraint(Sketcher.Constraint("Coincident", 38, 2, 39, 1))
sketch3.addConstraint(Sketcher.Constraint("Coincident", 39, 2, 40, 1))
sketch3.addConstraint(Sketcher.Constraint("Coincident", 40, 2, 41, 1))
sketch3.addConstraint(Sketcher.Constraint("Coincident", 41, 2, 42, 1))
sketch3.addConstraint(Sketcher.Constraint("Coincident", 42, 2, 43, 1))
sketch3.addConstraint(Sketcher.Constraint("Coincident", 43, 2, 44, 1))
sketch3.addConstraint(Sketcher.Constraint("Coincident", 44, 2, 36, 1))
sketch3.addConstraint(Sketcher.Constraint("Horizontal", 0))
sketch3.addConstraint(Sketcher.Constraint("Vertical", 1))
sketch3.addConstraint(Sketcher.Constraint("Horizontal", 2))
sketch3.addConstraint(Sketcher.Constraint("Horizontal", 4))
sketch3.addConstraint(Sketcher.Constraint("Horizontal", 6))
sketch3.addConstraint(Sketcher.Constraint("Vertical", 7))
sketch3.addConstraint(Sketcher.Constraint("Vertical", 10))
sketch3.addConstraint(Sketcher.Constraint("Horizontal", 11))
sketch3.addConstraint(Sketcher.Constraint("Vertical", 12))
sketch3.addConstraint(Sketcher.Constraint("Vertical", 13))
sketch3.addConstraint(Sketcher.Constraint("Horizontal", 14))
sketch3.addConstraint(Sketcher.Constraint("Vertical", 15))
sketch3.addConstraint(Sketcher.Constraint("Vertical", 18))
sketch3.addConstraint(Sketcher.Constraint("Horizontal", 19))
sketch3.addConstraint(Sketcher.Constraint("Horizontal", 21))
sketch3.addConstraint(Sketcher.Constraint("Horizontal", 23))
sketch3.addConstraint(Sketcher.Constraint("Vertical", 25))
sketch3.addConstraint(Sketcher.Constraint("Horizontal", 26))
sketch3.addConstraint(Sketcher.Constraint("Horizontal", 27))
sketch3.addConstraint(Sketcher.Constraint("Vertical", 28))
sketch3.addConstraint(Sketcher.Constraint("Vertical", 31))
sketch3.addConstraint(Sketcher.Constraint("Horizontal", 32))
sketch3.addConstraint(Sketcher.Constraint("Vertical", 33))
sketch3.addConstraint(Sketcher.Constraint("Horizontal", 34))
sketch3.addConstraint(Sketcher.Constraint("Vertical", 35))
sketch3.addConstraint(Sketcher.Constraint("Horizontal", 36))
sketch3.addConstraint(Sketcher.Constraint("Vertical", 37))
sketch3.addConstraint(Sketcher.Constraint("Horizontal", 38))
sketch3.addConstraint(Sketcher.Constraint("Vertical", 39))
sketch3.addConstraint(Sketcher.Constraint("Horizontal", 40))
sketch3.addConstraint(Sketcher.Constraint("Vertical", 41))
sketch3.addConstraint(Sketcher.Constraint("Vertical", 44))
sketch3.addConstraint(Sketcher.Constraint("Symmetric", 18, 2, 31, 2, -1, 1))
sketch3.addConstraint(Sketcher.Constraint("Symmetric", 25, 2, 33, 2, -1, 1))
sketch3.addConstraint(Sketcher.Constraint("Symmetric", 12, 2, 37, 2, -1, 1))
sketch3.addConstraint(Sketcher.Constraint("Symmetric", 1, 2, 39, 2, -1, 1))
sketch3.addConstraint(Sketcher.Constraint("Symmetric", 6, 2, 40, 2, -1, 1))
sketch3.addConstraint(Sketcher.Constraint("Symmetric", 11, 2, 13, 2, -2))
sketch3.addConstraint(Sketcher.Constraint("Symmetric", 9, 2, 15, 2, -2))
sketch3.addConstraint(Sketcher.Constraint("Symmetric", 8, 2, 16, 2, -2))
sketch3.addConstraint(Sketcher.Constraint("Symmetric", 7, 2, 17, 2, -2))
sketch3.addConstraint(Sketcher.Constraint("Symmetric", 5, 2, 19, 2, -2))
sketch3.addConstraint(Sketcher.Constraint("Symmetric", 4, 2, 20, 2, -2))
sketch3.addConstraint(Sketcher.Constraint("Symmetric", 2, 2, 22, 2, -2))
sketch3.addConstraint(Sketcher.Constraint("Symmetric", 0, 2, 25, 2, -2))
sketch3.addConstraint(Sketcher.Constraint("Symmetric", 35, 2, 36, 2, -2))
sketch3.addConstraint(Sketcher.Constraint("Symmetric", 29, 2, 42, 2, -2))
sketch3.addConstraint(Sketcher.Constraint("Symmetric", 28, 2, 43, 2, -2))
sketch3.addConstraint(Sketcher.Constraint("Parallel", 5, 8))
sketch3.addConstraint(Sketcher.Constraint("Parallel", 3, 9))
sketch3.addConstraint(Sketcher.Constraint("Parallel", 8, 16))
sketch3.addConstraint(Sketcher.Constraint("Parallel", 16, 22))
sketch3.addConstraint(Sketcher.Constraint("Parallel", 22, 29))
sketch3.addConstraint(Sketcher.Constraint("Parallel", 20, 30))
sketch3.addConstraint(Sketcher.Constraint("Parallel", 29, 42))
sketch3.addConstraint(Sketcher.Constraint("Horizontal", 24, 3, 8, 2))
sketch3.addConstraint(Sketcher.Constraint("Vertical", 7, 2, 9, 2))
sketch3.addConstraint(Sketcher.Constraint("Vertical", 10, 2, 27, 2))
sketch3.addConstraint(Sketcher.Constraint("Vertical", 8, 2, 29, 2))
sketch3.addConstraint(Sketcher.Constraint("Equal", 15, 28))
sketch3.addConstraint(Sketcher.Constraint("Radius", 24, Q("6 mm")))
sketch3.addConstraint(Sketcher.Constraint("DistanceY", 1, 1, 1, 2, Q("2 mm")))
sketch3.addConstraint(Sketcher.Constraint("DistanceX", 14, 2, 24, 3, Q("3 mm")))
sketch3.addConstraint(Sketcher.Constraint("DistanceY", 1, 2, 24, 3, Q("2.5 mm")))
sketch3.addConstraint(Sketcher.Constraint("DistanceY", 29, 2, 31, 2, Q("6.5 mm")))
sketch3.addConstraint(Sketcher.Constraint("Angle", 3, Q("-59.9996 deg")))
sketch3.addConstraint(Sketcher.Constraint("DistanceY", 12, 2, 12, 1, Q("10.5 mm")))
sketch3.addConstraint(Sketcher.Constraint("DistanceX", -1, 1, 11, 2, Q("25.4 mm")))
sketch3.addConstraint(Sketcher.Constraint("DistanceX", 23, 1, 23, 2, Q("3.287 mm")))
sketch3.addConstraint(Sketcher.Constraint("Distance", 3, Q("0.724 mm")))
sketch3.addConstraint(Sketcher.Constraint("DistanceX", 0, 2, 0, 1, Q("10.3365 mm")))
sketch3.addConstraint(Sketcher.Constraint("DistanceX", 4, 1, 4, 2, Q("3.6108 mm")))
sketch3.addConstraint(Sketcher.Constraint("DistanceY", 7, 1, 7, 2, Q("1.4421 mm")))
sketch3.addConstraint(Sketcher.Constraint("DistanceY", 10, 2, 27, 2, Q("37.127 mm")))
pad3 = body.newObject("PartDesign::Pad", "Pad002")
pad3.Profile = sketch3
pad3.Length = 11
pad3.Reversed = True
doc.recompute()

fillet = body.newObject("PartDesign::Fillet", "Fillet")
fillet.Base = (pad3, edges_at(pad3, [
    (-25.4, -2.381, 51.063),
    (25.4, -2.381, 51.063),
    (-25.4, -2.381, -51.063),
    (25.4, -2.381, -51.063),
]))
fillet.Radius = 10
doc.recompute()

fillet2 = body.newObject("PartDesign::Fillet", "Fillet001")
fillet2.Base = (fillet, edges_at(fillet, [
    (-25.4, 0, 36.063),
    (-22.471, 0, 48.135),
    (0, 0, 51.063),
    (22.471, 0, 48.135),
    (25.4, 0, 36.063),
    (25.4, 0, -2),
    (-25.4, 0, -2),
    (-25.4, 0, -36.063),
    (-22.471, 0, -48.135),
    (0, 0, -51.063),
    (22.471, 0, -48.135),
    (25.4, 0, -36.063),
]))
fillet2.Radius = 1
doc.recompute()

fillet3 = body.newObject("PartDesign::Fillet", "Fillet002")
fillet3.Base = (fillet2, edges_at(fillet2, [
    (25.4, 5, -31.064),
    (25.4, 5, 31.064),
    (-25.4, 5, 31.064),
    (-25.4, 5, -31.064),
]))
fillet3.Radius = 1

doc.recompute()
